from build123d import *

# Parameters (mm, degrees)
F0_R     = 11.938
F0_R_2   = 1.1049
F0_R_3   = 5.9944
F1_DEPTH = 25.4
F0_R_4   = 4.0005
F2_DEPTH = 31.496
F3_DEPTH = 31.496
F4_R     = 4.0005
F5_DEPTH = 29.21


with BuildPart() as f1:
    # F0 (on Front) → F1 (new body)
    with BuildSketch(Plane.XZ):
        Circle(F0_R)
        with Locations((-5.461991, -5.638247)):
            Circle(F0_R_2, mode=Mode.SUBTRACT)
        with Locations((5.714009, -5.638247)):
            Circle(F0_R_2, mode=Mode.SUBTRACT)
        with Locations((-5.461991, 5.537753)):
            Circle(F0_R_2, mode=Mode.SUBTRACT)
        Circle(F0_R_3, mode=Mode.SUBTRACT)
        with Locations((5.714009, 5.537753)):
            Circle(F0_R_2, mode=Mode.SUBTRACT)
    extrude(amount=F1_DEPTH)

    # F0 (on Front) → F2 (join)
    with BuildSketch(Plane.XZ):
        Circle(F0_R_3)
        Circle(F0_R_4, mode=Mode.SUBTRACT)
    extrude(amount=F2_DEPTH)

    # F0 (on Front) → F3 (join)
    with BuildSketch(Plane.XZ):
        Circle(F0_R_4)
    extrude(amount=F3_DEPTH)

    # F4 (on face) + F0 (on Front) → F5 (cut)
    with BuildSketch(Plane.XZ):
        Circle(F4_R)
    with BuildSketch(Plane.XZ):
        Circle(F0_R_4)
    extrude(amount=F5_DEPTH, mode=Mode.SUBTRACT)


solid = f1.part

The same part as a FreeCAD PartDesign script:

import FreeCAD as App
import Part
import Sketcher
from FreeCAD import Vector
Q = App.Units.Quantity

doc = App.newDocument("Part")
body = doc.addObject("PartDesign::Body", "Body")

# Sketch on XZ plane
sketch1 = body.newObject("Sketcher::SketchObject", "Sketch")
sketch1.AttachmentSupport = (doc.getObject("XZ_Plane"), [""])
sketch1.MapMode = "FlatFace"
sketch1.addGeometry([
    Part.Circle(Vector(0, 0, 0), Vector(0, 0, 1), 11.9),  # 0
    Part.Circle(Vector(-5.5, -5.6, 0), Vector(0, 0, 1), 1.1),  # 1
    Part.Circle(Vector(5.7, -5.6, 0), Vector(0, 0, 1), 1.1),  # 2
    Part.Circle(Vector(0, 0, 0), Vector(0, 0, 1), 6),  # 3
    Part.Circle(Vector(-5.5, 5.5, 0), Vector(0, 0, 1), 1.1),  # 4
    Part.Circle(Vector(5.7, 5.5, 0), Vector(0, 0, 1), 1.1),  # 5
], False)
sketch1.addConstraint([
    Sketcher.Constraint("Coincident", 0, 3, -1, 1),
    Sketcher.Constraint("Coincident", 3, 3, -1, 1),
    Sketcher.Constraint("Equal", 1, 2),
    Sketcher.Constraint("Equal", 2, 4),
    Sketcher.Constraint("Equal", 4, 5),
    Sketcher.Constraint("Horizontal", 1, 3, 2, 3),
    Sketcher.Constraint("Horizontal", 4, 3, 5, 3),
    Sketcher.Constraint("Vertical", 1, 3, 4, 3),
    Sketcher.Constraint("Vertical", 2, 3, 5, 3),
    Sketcher.Constraint("Diameter", 0, Q("0.94 in")),
    Sketcher.Constraint("Diameter", 1, Q("0.087 in")),
    Sketcher.Constraint("Diameter", 3, Q("0.472 in")),
    Sketcher.Constraint("DistanceX", 1, 3, 2, 3, Q("0.44 in")),
    Sketcher.Constraint("DistanceY", 1, 3, 4, 3, Q("0.44 in")),
    Sketcher.Constraint("DistanceX", 1, 3, -1, 1, 5.461991),
    Sketcher.Constraint("DistanceY", 1, 3, -1, 1, 5.638247),
])
pad1 = body.newObject("PartDesign::Pad", "Pad")
pad1.Profile = sketch1
pad1.Length = Q("1 in")

# Sketch on XZ plane
sketch2 = body.newObject("Sketcher::SketchObject", "Sketch001")
sketch2.AttachmentSupport = (doc.getObject("XZ_Plane"), [""])
sketch2.MapMode = "FlatFace"
sketch2.addGeometry([
    Part.Circle(Vector(0, 0, 0), Vector(0, 0, 1), 6),
    Part.Circle(Vector(0, 0, 0), Vector(0, 0, 1), 4),
], False)
sketch2.addConstraint([
    Sketcher.Constraint("Coincident", 0, 3, -1, 1),
    Sketcher.Constraint("Coincident", 1, 3, -1, 1),
    Sketcher.Constraint("Diameter", 0, Q("0.472 in")),
    Sketcher.Constraint("Diameter", 1, Q("0.315 in")),
])
pad2 = body.newObject("PartDesign::Pad", "Pad001")
pad2.Profile = sketch2
pad2.Length = Q("1.24 in")

# Sketch on XZ plane
sketch3 = body.newObject("Sketcher::SketchObject", "Sketch002")
sketch3.AttachmentSupport = (doc.getObject("XZ_Plane"), [""])
sketch3.MapMode = "FlatFace"
sketch3.addGeometry(Part.Circle(Vector(0, 0, 0), Vector(0, 0, 1), 4), False)
sketch3.addConstraint([
    Sketcher.Constraint("Coincident", 0, 3, -1, 1),
    Sketcher.Constraint("Diameter", 0, Q("0.315 in")),
])
pad3 = body.newObject("PartDesign::Pad", "Pad002")
pad3.Profile = sketch3
pad3.Length = Q("1.24 in")

# Sketch on XZ plane
sketch4 = body.newObject("Sketcher::SketchObject", "Sketch003")
sketch4.AttachmentSupport = (doc.getObject("XZ_Plane"), [""])
sketch4.MapMode = "FlatFace"
sketch4.addGeometry(Part.Circle(Vector(0, 0, 0), Vector(0, 0, 1), 4), False)
sketch4.addConstraint([
    Sketcher.Constraint("Coincident", 0, 3, -1, 1),
    Sketcher.Constraint("Diameter", 0, Q("0.315 in")),
])
pocket1 = body.newObject("PartDesign::Pocket", "Pocket")
pocket1.Profile = sketch4
pocket1.Length = Q("1.15 in")
pocket1.Reversed = True

doc.recompute()
